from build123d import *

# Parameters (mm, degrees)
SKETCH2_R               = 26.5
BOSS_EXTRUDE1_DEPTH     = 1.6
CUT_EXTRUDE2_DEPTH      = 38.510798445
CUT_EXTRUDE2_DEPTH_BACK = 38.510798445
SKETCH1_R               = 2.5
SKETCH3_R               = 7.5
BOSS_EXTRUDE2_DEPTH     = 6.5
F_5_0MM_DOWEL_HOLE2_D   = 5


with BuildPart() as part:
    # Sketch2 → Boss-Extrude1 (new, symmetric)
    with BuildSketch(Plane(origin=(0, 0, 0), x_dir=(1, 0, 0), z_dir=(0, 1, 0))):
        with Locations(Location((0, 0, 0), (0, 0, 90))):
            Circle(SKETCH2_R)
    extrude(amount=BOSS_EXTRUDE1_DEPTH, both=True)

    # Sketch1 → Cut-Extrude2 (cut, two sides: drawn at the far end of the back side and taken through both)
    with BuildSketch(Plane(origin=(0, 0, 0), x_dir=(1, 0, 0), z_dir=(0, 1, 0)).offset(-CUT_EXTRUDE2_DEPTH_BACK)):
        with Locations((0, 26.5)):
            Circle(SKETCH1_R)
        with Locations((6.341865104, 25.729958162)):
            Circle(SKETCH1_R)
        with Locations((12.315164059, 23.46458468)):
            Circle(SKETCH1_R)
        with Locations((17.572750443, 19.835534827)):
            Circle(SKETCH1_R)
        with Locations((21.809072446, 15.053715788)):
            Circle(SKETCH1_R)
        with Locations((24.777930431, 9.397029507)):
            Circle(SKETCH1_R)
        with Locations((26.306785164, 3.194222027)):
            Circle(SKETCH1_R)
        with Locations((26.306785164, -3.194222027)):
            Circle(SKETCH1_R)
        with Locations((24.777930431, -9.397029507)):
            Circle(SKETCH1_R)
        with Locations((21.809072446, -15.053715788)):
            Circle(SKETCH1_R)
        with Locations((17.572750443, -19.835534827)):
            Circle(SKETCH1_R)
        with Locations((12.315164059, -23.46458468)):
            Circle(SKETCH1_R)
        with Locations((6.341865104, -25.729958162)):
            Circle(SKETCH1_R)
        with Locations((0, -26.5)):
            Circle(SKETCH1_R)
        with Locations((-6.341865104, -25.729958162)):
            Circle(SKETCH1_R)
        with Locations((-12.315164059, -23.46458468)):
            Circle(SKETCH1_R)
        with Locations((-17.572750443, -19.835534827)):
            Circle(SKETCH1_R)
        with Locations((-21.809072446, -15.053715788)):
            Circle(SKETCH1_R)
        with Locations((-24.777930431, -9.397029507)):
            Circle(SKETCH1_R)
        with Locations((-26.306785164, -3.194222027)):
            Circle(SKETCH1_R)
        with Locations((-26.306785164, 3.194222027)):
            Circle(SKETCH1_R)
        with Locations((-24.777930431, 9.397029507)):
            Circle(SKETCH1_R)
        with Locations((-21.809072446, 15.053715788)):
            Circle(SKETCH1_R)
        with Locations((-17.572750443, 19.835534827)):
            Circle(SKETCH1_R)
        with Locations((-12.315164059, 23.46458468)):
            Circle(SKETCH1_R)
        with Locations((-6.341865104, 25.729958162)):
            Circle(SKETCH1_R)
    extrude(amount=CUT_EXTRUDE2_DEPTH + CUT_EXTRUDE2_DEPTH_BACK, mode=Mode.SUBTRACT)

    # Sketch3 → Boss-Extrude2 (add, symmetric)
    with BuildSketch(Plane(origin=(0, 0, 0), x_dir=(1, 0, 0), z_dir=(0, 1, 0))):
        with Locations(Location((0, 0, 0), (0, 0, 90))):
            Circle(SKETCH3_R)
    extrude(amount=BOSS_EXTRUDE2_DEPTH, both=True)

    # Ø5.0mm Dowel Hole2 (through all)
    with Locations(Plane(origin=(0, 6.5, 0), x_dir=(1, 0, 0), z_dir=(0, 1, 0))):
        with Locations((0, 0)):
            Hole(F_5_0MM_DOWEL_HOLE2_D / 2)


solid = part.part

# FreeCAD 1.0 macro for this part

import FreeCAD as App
import Part
import Sketcher
from FreeCAD import Vector
Q = App.Units.Quantity

doc = App.newDocument("Part")
body = doc.addObject("PartDesign::Body", "Body")

# Sketch on XZ plane
sketch1 = body.newObject("Sketcher::SketchObject", "Sketch")
sketch1.AttachmentSupport = (doc.getObject("XZ_Plane"), [""])
sketch1.MapMode = "FlatFace"
sketch1.addGeometry(Part.Circle(Vector(0, 0, 0), Vector(0, 0, 1), 26.5), False)
sketch1.addConstraint([
    Sketcher.Constraint("Coincident", 0, 3, -1, 1),
    Sketcher.Constraint("Diameter", 0, Q("53 mm")),
])
pad1 = body.newObject("PartDesign::Pad", "Pad")
pad1.Profile = sketch1
pad1.Length = 3.2
pad1.Midplane = True

# Sketch on XZ plane
sketch2 = body.newObject("Sketcher::SketchObject", "Sketch001")
sketch2.AttachmentSupport = (doc.getObject("XZ_Plane"), [""])
sketch2.MapMode = "FlatFace"
sketch2.addGeometry([
    Part.Circle(Vector(0, -26.5, 0), Vector(0, 0, 1), 2.5),  # 0
    Part.Circle(Vector(6.341865, -25.729958, 0), Vector(0, 0, 1), 2.5),  # 1
    Part.Circle(Vector(12.315164, -23.464585, 0), Vector(0, 0, 1), 2.5),  # 2
    Part.Circle(Vector(17.57275, -19.835535, 0), Vector(0, 0, 1), 2.5),  # 3
    Part.Circle(Vector(21.809072, -15.053716, 0), Vector(0, 0, 1), 2.5),  # 4
    Part.Circle(Vector(24.77793, -9.39703, 0), Vector(0, 0, 1), 2.5),  # 5
    Part.Circle(Vector(26.306785, -3.194222, 0), Vector(0, 0, 1), 2.5),  # 6
    Part.Circle(Vector(26.306785, 3.194222, 0), Vector(0, 0, 1), 2.5),  # 7
    Part.Circle(Vector(24.77793, 9.39703, 0), Vector(0, 0, 1), 2.5),  # 8
    Part.Circle(Vector(21.809072, 15.053716, 0), Vector(0, 0, 1), 2.5),  # 9
    Part.Circle(Vector(17.57275, 19.835535, 0), Vector(0, 0, 1), 2.5),  # 10
    Part.Circle(Vector(12.315164, 23.464585, 0), Vector(0, 0, 1), 2.5),  # 11
    Part.Circle(Vector(6.341865, 25.729958, 0), Vector(0, 0, 1), 2.5),  # 12
    Part.Circle(Vector(0, 26.5, 0), Vector(0, 0, 1), 2.5),  # 13
    Part.Circle(Vector(-6.341865, 25.729958, 0), Vector(0, 0, 1), 2.5),  # 14
    Part.Circle(Vector(-12.315164, 23.464585, 0), Vector(0, 0, 1), 2.5),  # 15
    Part.Circle(Vector(-17.57275, 19.835535, 0), Vector(0, 0, 1), 2.5),  # 16
    Part.Circle(Vector(-21.809072, 15.053716, 0), Vector(0, 0, 1), 2.5),  # 17
    Part.Circle(Vector(-24.77793, 9.39703, 0), Vector(0, 0, 1), 2.5),  # 18
    Part.Circle(Vector(-26.306785, 3.194222, 0), Vector(0, 0, 1), 2.5),  # 19
    Part.Circle(Vector(-26.306785, -3.194222, 0), Vector(0, 0, 1), 2.5),  # 20
    Part.Circle(Vector(-24.77793, -9.39703, 0), Vector(0, 0, 1), 2.5),  # 21
    Part.Circle(Vector(-21.809072, -15.053716, 0), Vector(0, 0, 1), 2.5),  # 22
    Part.Circle(Vector(-17.57275, -19.835535, 0), Vector(0, 0, 1), 2.5),  # 23
    Part.Circle(Vector(-12.315164, -23.464585, 0), Vector(0, 0, 1), 2.5),  # 24
    Part.Circle(Vector(-6.341865, -25.729958, 0), Vector(0, 0, 1), 2.5),  # 25
], False)
sketch2.addConstraint([
    Sketcher.Constraint("Equal", 0, 1),
    Sketcher.Constraint("Equal", 1, 2),
    Sketcher.Constraint("Equal", 2, 3),
    Sketcher.Constraint("Equal", 3, 4),
    Sketcher.Constraint("Equal", 4, 5),
    Sketcher.Constraint("Equal", 5, 6),
    Sketcher.Constraint("Equal", 6, 7),
    Sketcher.Constraint("Equal", 7, 8),
    Sketcher.Constraint("Equal", 8, 9),
    Sketcher.Constraint("Equal", 9, 10),
    Sketcher.Constraint("Equal", 10, 11),
    Sketcher.Constraint("Equal", 11, 12),
    Sketcher.Constraint("Equal", 12, 13),
    Sketcher.Constraint("Equal", 13, 14),
    Sketcher.Constraint("Equal", 14, 15),
    Sketcher.Constraint("Equal", 15, 16),
    Sketcher.Constraint("Equal", 16, 17),
    Sketcher.Constraint("Equal", 17, 18),
    Sketcher.Constraint("Equal", 18, 19),
    Sketcher.Constraint("Equal", 19, 20),
    Sketcher.Constraint("Equal", 20, 21),
    Sketcher.Constraint("Equal", 21, 22),
    Sketcher.Constraint("Equal", 22, 23),
    Sketcher.Constraint("Equal", 23, 24),
    Sketcher.Constraint("Equal", 24, 25),
    Sketcher.Constraint("Symmetric", 0, 3, 13, 3, -1, 1),
    Sketcher.Constraint("Symmetric", 1, 3, 14, 3, -1, 1),
    Sketcher.Constraint("Symmetric", 2, 3, 15, 3, -1, 1),
    Sketcher.Constraint("Symmetric", 3, 3, 16, 3, -1, 1),
    Sketcher.Constraint("Symmetric", 4, 3, 17, 3, -1, 1),
    Sketcher.Constraint("Symmetric", 5, 3, 18, 3, -1, 1),
    Sketcher.Constraint("Symmetric", 6, 3, 19, 3, -1, 1),
    Sketcher.Constraint("Symmetric", 7, 3, 20, 3, -1, 1),
    Sketcher.Constraint("Symmetric", 8, 3, 21, 3, -1, 1),
    Sketcher.Constraint("Symmetric", 9, 3, 22, 3, -1, 1),
    Sketcher.Constraint("Symmetric", 10, 3, 23, 3, -1, 1),
    Sketcher.Constraint("Symmetric", 11, 3, 24, 3, -1, 1),
    Sketcher.Constraint("Symmetric", 12, 3, 25, 3, -1, 1),
    Sketcher.Constraint("Symmetric", 12, 3, 14, 3, -2),
    Sketcher.Constraint("Symmetric", 11, 3, 15, 3, -2),
    Sketcher.Constraint("Symmetric", 10, 3, 16, 3, -2),
    Sketcher.Constraint("Symmetric", 9, 3, 17, 3, -2),
    Sketcher.Constraint("Symmetric", 8, 3, 18, 3, -2),
    Sketcher.Constraint("Symmetric", 7, 3, 19, 3, -2),
    Sketcher.Constraint("PointOnObject", 0, 3, -2),
    Sketcher.Constraint("Diameter", 0, Q("5 mm")),
    Sketcher.Constraint("DistanceY", 0, 3, -1, 1, Q("26.5 mm")),
    Sketcher.Constraint("DistanceX", 1, 3, 2, 3, Q("5.973299 mm")),
    Sketcher.Constraint("DistanceY", 1, 3, -1, 1, Q("25.729958 mm")),
    Sketcher.Constraint("DistanceX", -1, 1, 3, 3, Q("17.57275 mm")),
    Sketcher.Constraint("DistanceX", -1, 1, 5, 3, Q("24.77793 mm")),
    Sketcher.Constraint("DistanceY", 5, 3, -1, 1, Q("9.39703 mm")),
    Sketcher.Constraint("DistanceY", 2, 3, 3, 3, Q("3.62905 mm")),
    Sketcher.Constraint("DistanceY", 3, 3, 4, 3, Q("4.781819 mm")),
    Sketcher.Constraint("DistanceX", 2, 3, 4, 3, Q("9.493908 mm")),
    Sketcher.Constraint("DistanceX", 2, 3, 6, 3, Q("13.991621 mm")),
    Sketcher.Constraint("DistanceY", 5, 3, 7, 3, Q("12.591252 mm")),
    Sketcher.Constraint("DistanceY", 4, 3, 9, 3, Q("30.107432 mm")),
    Sketcher.Constraint("DistanceX", 14, 3, 12, 3, Q("12.68373 mm")),
])
pocket1 = body.newObject("PartDesign::Pocket", "Pocket")
pocket1.Profile = sketch2
pocket1.Type = "ThroughAll"
pocket1.Midplane = True

# Sketch on XZ plane
sketch3 = body.newObject("Sketcher::SketchObject", "Sketch002")
sketch3.AttachmentSupport = (doc.getObject("XZ_Plane"), [""])
sketch3.MapMode = "FlatFace"
sketch3.addGeometry(Part.Circle(Vector(0, 0, 0), Vector(0, 0, 1), 7.5), False)
sketch3.addConstraint([
    Sketcher.Constraint("Coincident", 0, 3, -1, 1),
    Sketcher.Constraint("Diameter", 0, Q("15 mm")),
])
pad2 = body.newObject("PartDesign::Pad", "Pad001")
pad2.Profile = sketch3
pad2.Length = 13
pad2.Midplane = True

# Sketch on XZ plane
sketch4 = body.newObject("Sketcher::SketchObject", "Sketch003")
sketch4.AttachmentSupport = (doc.getObject("XZ_Plane"), [""])
sketch4.MapMode = "FlatFace"
sketch4.AttachmentOffset = App.Placement(Vector(0, 0, -6.5), App.Rotation())
sketch4.addGeometry(Part.Circle(Vector(0, 0, 0), Vector(0, 0, 1), 2.5), False)
sketch4.addConstraint([
    Sketcher.Constraint("Coincident", 0, 3, -1, 1),
    Sketcher.Constraint("Diameter", 0, Q("5 mm")),
])
doc.recompute()
hole = body.newObject("PartDesign::Hole", "Hole")
hole.Profile = sketch4
hole.ThreadType = "None"
hole.Diameter = 5
hole.DepthType = "ThroughAll"
hole.Reversed = True

doc.recompute()
